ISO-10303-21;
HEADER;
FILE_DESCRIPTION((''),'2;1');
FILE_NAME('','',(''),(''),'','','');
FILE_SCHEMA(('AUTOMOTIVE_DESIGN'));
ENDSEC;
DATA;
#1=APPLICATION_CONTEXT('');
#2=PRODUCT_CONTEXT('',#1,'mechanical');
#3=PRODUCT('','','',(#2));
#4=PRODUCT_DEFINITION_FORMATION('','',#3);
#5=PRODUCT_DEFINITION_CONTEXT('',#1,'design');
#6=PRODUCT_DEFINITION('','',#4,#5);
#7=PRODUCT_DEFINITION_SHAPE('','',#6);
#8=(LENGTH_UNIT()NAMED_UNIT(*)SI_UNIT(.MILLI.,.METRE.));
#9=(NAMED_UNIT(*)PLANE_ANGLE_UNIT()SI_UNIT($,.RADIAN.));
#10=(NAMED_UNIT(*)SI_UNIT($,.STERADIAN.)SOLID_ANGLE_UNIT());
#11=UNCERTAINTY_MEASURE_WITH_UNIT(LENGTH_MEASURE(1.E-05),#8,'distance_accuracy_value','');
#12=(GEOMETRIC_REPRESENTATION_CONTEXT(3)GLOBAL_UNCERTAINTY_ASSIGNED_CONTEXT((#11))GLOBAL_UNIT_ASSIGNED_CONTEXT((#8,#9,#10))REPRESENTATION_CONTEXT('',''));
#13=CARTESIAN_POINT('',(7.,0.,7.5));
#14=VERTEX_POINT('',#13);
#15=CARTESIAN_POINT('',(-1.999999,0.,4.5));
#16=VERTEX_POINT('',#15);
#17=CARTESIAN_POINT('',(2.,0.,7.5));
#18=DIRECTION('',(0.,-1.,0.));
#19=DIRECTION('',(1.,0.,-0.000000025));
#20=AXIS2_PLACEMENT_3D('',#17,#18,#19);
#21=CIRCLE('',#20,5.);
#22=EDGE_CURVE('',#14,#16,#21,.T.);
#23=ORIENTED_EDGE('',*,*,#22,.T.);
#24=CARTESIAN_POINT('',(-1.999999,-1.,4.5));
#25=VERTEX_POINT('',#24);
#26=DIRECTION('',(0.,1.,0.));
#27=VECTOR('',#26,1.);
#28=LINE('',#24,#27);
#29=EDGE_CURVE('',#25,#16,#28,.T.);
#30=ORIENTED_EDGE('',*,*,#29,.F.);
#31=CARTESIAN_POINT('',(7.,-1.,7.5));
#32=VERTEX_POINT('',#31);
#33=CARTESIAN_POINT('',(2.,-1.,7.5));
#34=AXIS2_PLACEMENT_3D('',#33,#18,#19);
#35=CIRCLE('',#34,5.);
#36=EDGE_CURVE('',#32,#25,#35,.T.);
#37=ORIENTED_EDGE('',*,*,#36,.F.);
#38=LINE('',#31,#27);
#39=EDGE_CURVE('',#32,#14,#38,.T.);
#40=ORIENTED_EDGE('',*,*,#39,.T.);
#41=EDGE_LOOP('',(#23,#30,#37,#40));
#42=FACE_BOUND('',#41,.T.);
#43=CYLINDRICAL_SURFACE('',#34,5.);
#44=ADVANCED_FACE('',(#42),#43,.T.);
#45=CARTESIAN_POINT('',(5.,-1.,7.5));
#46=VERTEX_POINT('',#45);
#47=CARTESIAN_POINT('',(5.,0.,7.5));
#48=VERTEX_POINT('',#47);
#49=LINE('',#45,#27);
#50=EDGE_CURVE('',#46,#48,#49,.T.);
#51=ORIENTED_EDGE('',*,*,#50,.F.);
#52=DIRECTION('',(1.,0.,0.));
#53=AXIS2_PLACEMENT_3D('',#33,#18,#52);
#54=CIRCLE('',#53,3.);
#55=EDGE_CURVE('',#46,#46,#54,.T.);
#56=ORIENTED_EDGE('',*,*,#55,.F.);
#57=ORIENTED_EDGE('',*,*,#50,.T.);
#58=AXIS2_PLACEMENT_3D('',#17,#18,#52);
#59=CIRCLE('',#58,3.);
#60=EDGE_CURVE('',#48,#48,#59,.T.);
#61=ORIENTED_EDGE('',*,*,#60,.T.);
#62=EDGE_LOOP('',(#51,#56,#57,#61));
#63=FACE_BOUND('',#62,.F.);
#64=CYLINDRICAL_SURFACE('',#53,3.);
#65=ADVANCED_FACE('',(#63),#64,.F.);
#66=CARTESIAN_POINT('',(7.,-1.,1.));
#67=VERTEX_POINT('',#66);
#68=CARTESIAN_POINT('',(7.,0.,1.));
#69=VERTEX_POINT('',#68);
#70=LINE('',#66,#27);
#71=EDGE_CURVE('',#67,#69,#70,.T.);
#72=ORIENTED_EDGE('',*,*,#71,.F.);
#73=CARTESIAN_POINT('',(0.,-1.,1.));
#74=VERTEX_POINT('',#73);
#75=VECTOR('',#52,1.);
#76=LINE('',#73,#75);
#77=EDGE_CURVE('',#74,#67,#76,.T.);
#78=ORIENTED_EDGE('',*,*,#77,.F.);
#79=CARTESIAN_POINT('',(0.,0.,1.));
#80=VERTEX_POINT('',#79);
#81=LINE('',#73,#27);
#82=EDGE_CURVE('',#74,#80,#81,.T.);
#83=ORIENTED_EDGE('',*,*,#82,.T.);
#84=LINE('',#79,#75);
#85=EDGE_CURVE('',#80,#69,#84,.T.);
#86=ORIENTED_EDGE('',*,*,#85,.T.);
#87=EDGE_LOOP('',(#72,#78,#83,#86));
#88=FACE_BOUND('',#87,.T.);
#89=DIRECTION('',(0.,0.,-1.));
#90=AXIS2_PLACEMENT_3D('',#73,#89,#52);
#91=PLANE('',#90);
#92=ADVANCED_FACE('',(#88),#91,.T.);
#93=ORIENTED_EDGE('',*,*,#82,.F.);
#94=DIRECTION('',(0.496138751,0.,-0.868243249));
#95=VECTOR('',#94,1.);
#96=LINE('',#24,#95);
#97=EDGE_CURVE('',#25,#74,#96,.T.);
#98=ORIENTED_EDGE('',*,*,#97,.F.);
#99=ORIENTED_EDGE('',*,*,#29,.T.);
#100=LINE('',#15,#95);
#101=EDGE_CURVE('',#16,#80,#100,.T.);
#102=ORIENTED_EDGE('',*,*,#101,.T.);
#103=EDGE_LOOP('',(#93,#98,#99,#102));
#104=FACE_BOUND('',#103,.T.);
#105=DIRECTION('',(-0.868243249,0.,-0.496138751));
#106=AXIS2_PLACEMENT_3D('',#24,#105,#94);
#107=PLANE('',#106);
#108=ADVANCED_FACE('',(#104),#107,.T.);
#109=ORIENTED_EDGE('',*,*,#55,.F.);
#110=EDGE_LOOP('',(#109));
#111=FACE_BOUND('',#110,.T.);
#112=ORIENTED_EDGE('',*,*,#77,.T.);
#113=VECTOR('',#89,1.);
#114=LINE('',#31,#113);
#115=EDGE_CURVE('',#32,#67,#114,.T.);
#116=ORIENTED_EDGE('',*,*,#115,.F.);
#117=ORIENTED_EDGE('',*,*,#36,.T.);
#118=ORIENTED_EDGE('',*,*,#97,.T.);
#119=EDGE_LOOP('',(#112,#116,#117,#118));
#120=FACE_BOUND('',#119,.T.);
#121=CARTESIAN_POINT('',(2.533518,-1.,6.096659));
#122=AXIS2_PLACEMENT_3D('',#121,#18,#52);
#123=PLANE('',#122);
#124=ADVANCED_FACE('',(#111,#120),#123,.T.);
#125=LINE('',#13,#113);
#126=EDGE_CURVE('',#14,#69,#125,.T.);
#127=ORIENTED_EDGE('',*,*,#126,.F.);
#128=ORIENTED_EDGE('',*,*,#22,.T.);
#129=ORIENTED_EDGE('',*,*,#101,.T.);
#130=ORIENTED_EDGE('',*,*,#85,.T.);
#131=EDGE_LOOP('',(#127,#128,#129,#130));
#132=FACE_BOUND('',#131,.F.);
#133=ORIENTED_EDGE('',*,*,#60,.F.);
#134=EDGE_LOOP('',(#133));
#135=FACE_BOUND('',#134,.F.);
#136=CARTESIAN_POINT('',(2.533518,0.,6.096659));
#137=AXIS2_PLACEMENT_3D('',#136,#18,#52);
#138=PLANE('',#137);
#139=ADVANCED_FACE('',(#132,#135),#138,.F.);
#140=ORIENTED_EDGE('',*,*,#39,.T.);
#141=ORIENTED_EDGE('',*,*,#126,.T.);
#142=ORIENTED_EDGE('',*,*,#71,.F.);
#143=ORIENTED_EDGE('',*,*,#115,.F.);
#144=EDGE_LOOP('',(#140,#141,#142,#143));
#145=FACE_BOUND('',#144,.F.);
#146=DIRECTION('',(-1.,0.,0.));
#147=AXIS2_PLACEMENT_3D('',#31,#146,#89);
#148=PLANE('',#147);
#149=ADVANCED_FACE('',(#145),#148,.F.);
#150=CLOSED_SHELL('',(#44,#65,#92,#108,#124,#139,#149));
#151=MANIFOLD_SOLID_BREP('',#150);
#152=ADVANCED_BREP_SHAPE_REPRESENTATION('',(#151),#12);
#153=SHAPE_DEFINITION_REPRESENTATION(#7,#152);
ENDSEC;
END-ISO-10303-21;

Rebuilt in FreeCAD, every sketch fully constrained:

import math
import FreeCAD as App
import Part
import Sketcher

doc = App.newDocument("Part")
body = doc.addObject("PartDesign::Body", "Body")

sketch1 = body.newObject("Sketcher::SketchObject", "Sketch")
sketch1.AttachmentSupport = (doc.getObject("XY_Plane"), [""])
sketch1.MapMode = "FlatFace"
sketch1.addGeometry(Part.Circle(App.Vector(2, 8, 0), App.Vector(0, 0, 1), 3), False)
sketch1.addConstraint([
    Sketcher.Constraint("Diameter", 0, 6.0),
    Sketcher.Constraint("DistanceX", -1, 1, 0, 3, 2.0),
    Sketcher.Constraint("DistanceY", -1, 1, 0, 3, 8.0),
])
pad1 = body.newObject("PartDesign::Pad", "Pad")
pad1.Profile = sketch1
pad1.Length = 1
pad1.Reversed = True
body2 = doc.addObject("PartDesign::Body", "Body001")
doc.recompute()

body.Placement = App.Placement(App.Vector(0, 0, 0), App.Rotation(App.Vector(1, 0, 0), 90))
boolean = body2.newObject("PartDesign::Boolean", "Boolean")
boolean.Type = "Fuse"
boolean.addObjects([body])
body3 = doc.addObject("PartDesign::Body", "Body002")
doc.recompute()

body2.Placement = App.Placement(App.Vector(0, -1, -0.5), App.Rotation(App.Vector(0, 0, 1), 0))
boolean2 = body3.newObject("PartDesign::Boolean", "Boolean001")
boolean2.Type = "Fuse"
boolean2.addObjects([body2])
body4 = doc.addObject("PartDesign::Body", "Body003")

sketch2 = body4.newObject("Sketcher::SketchObject", "Sketch001")
sketch2.AttachmentSupport = (doc.getObject("XY_Plane003"), [""])
sketch2.MapMode = "FlatFace"
sketch2.addGeometry([
    Part.ArcOfCircle(Part.Circle(App.Vector(2, 8, 0), App.Vector(0, 0, 1), 5), math.radians(-0.000001), math.radians(216.869903)),
    Part.LineSegment(App.Vector(-1.999999, 5, 0), App.Vector(0, 1.5, 0)),
    Part.LineSegment(App.Vector(0, 1.5, 0), App.Vector(7, 1.5, 0)),
    Part.LineSegment(App.Vector(7, 1.5, 0), App.Vector(7, 8, 0)),
], False)
sketch2.addConstraint([
    Sketcher.Constraint("Coincident", 0, 2, 1, 1),
    Sketcher.Constraint("Coincident", 1, 2, 2, 1),
    Sketcher.Constraint("Coincident", 2, 2, 3, 1),
    Sketcher.Constraint("Tangent", 3, 2, 0, 1),
    Sketcher.Constraint("Horizontal", 2),
    Sketcher.Constraint("Vertical", 3),
    Sketcher.Constraint("PointOnObject", 1, 2, -2),
    Sketcher.Constraint("Radius", 0, 5.0),
    Sketcher.Constraint("DistanceX", 2, 1, 2, 2, 7.0),
    Sketcher.Constraint("DistanceY", 3, 1, 3, 2, 6.5),
    Sketcher.Constraint("DistanceY", -1, 1, 0, 3, 8.0),
    Sketcher.Constraint("DistanceX", 0, 2, -1, 1, 1.999999),
])
pad2 = body4.newObject("PartDesign::Pad", "Pad001")
pad2.Profile = sketch2
pad2.Length = 1
pad2.Reversed = True
body5 = doc.addObject("PartDesign::Body", "Body004")
doc.recompute()

body4.Placement = App.Placement(App.Vector(0, 0, 0), App.Rotation(App.Vector(1, 0, 0), 90))
boolean3 = body5.newObject("PartDesign::Boolean", "Boolean002")
boolean3.Type = "Fuse"
boolean3.addObjects([body4])
body6 = doc.addObject("PartDesign::Body", "Body005")
doc.recompute()

body5.Placement = App.Placement(App.Vector(0, -1, -0.5), App.Rotation(App.Vector(0, 0, 1), 0))
boolean4 = body6.newObject("PartDesign::Boolean", "Boolean003")
boolean4.Type = "Fuse"
boolean4.addObjects([body5])
doc.recompute()

boolean5 = body6.newObject("PartDesign::Boolean", "Boolean004")
boolean5.Type = "Cut"
boolean5.addObjects([body3])

doc.recompute()
